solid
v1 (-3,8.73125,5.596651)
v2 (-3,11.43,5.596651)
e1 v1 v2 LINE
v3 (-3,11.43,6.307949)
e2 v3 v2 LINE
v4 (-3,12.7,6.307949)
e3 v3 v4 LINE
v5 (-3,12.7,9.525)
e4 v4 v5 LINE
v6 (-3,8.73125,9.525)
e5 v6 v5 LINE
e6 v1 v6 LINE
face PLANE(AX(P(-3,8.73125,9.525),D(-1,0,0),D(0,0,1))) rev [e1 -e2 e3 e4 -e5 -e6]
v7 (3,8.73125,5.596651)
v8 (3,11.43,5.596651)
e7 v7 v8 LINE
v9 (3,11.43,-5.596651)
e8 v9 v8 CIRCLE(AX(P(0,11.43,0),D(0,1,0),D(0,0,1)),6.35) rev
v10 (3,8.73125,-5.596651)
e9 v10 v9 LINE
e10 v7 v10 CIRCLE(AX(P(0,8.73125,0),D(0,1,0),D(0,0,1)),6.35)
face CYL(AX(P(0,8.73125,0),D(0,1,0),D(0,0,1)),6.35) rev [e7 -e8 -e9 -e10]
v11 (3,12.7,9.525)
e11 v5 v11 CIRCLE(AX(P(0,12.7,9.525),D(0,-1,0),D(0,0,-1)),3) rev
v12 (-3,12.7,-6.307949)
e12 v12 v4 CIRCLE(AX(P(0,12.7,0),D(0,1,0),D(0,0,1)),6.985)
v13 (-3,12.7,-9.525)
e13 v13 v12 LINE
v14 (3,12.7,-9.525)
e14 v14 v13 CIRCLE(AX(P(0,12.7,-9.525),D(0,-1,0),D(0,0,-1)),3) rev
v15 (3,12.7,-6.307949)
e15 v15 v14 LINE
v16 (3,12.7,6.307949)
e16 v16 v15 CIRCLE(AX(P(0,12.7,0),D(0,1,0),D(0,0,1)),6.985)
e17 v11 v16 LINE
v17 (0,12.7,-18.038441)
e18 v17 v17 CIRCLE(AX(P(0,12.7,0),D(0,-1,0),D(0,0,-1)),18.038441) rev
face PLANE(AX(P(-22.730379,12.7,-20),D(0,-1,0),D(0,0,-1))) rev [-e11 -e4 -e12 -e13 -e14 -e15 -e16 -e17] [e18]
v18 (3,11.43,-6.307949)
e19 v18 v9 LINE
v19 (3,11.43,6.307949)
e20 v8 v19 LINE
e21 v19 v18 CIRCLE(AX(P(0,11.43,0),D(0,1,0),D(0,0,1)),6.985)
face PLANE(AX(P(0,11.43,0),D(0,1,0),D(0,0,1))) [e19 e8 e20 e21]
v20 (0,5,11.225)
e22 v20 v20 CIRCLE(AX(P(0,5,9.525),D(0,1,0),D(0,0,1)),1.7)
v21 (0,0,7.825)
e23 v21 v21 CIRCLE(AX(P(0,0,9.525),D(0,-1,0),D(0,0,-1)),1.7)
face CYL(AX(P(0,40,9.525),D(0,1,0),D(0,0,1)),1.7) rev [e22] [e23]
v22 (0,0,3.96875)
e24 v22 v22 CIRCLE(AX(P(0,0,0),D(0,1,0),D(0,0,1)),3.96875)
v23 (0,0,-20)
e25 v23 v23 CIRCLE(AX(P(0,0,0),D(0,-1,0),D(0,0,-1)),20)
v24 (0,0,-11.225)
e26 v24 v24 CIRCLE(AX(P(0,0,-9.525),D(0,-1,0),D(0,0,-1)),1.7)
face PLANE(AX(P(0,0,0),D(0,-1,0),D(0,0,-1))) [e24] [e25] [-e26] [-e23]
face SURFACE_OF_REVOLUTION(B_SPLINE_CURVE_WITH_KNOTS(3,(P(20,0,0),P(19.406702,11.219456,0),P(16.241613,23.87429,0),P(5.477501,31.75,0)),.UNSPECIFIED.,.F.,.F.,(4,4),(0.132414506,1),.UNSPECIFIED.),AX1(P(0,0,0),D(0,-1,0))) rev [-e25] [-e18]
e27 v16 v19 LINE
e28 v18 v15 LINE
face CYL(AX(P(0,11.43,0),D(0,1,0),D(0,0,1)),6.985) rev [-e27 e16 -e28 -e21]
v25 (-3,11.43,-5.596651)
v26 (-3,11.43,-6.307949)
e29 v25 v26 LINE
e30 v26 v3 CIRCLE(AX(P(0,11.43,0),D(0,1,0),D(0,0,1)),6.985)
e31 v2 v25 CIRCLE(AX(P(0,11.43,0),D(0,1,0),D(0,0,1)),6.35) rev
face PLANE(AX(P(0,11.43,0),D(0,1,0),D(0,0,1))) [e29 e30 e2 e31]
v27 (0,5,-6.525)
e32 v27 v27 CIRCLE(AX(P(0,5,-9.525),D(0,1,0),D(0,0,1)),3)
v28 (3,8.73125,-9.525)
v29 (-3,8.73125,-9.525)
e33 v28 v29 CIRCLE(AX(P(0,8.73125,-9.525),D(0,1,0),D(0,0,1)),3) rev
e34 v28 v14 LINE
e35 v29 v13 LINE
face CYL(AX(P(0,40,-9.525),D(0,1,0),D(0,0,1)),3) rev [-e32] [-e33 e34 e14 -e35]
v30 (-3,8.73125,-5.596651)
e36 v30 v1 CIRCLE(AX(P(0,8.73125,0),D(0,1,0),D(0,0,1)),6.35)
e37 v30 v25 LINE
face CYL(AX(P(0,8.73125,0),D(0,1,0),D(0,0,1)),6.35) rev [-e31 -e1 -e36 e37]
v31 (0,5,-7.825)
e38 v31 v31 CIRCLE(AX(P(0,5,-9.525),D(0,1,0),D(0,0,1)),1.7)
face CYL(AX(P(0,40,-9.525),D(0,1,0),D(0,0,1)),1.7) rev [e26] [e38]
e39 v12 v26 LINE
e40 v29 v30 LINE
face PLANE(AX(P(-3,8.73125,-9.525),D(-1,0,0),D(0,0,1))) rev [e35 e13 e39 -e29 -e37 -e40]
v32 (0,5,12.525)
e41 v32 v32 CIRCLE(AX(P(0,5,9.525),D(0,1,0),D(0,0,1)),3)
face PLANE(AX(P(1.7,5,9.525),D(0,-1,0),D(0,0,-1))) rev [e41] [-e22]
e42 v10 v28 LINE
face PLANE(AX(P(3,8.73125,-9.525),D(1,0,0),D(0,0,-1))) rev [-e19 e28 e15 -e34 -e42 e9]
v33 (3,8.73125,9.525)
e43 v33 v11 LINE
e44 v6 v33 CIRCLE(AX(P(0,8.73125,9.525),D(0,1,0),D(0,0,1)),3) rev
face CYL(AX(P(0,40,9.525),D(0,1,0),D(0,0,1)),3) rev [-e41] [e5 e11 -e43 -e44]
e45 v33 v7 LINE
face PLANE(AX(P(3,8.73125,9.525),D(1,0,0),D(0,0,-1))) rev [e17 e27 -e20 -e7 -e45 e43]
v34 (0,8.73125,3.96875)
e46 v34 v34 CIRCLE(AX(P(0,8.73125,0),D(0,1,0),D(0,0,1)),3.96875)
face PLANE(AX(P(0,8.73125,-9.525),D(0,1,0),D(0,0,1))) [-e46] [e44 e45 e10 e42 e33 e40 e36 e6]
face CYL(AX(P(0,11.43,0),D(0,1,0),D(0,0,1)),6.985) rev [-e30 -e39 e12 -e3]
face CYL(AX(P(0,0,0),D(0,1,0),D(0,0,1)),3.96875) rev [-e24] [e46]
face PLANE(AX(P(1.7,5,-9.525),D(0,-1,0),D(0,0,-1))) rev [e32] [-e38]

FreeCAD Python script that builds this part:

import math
import FreeCAD as App
import Part
import Sketcher
Q = App.Units.Quantity


def add_polygon(sketch, points):
    """Adds a closed chain of lines whose ends are joined by coincident constraints."""
    first, n = sketch.GeometryCount, len(points)
    for a, b in zip(points, points[1:] + points[:1]):
        sketch.addGeometry(Part.LineSegment(App.Vector(*a, 0), App.Vector(*b, 0)), False)
    for i in range(n):
        sketch.addConstraint(Sketcher.Constraint("Coincident", first + i, 2, first + (i + 1) % n, 1))

doc = App.newDocument("Part")
params = doc.addObject("Spreadsheet::Sheet", "Params")
for row, (alias, value) in enumerate([
    ("revolution_angle", "360 deg"),
    ("hole_diameter", "3.4 mm"),
    ("hole_cbore_diameter", "6 mm"),
    ("hole_cbore_depth", "35 mm"),
    ("sketch3_height", "1.5 in"),
    ("sketch4_radius", "0.25 in"),
    ("pocket2_length", "0.15625 in"),
    ("sketch5_diameter", "0.55 in"),
    ("pocket3_length", "0.05 in"),
    ("sketch6_diameter", "0.3125 in"),
], start=1):
    params.set(f"A{row}", alias)
    params.set(f"B{row}", "=" + value)
    params.setAlias(f"B{row}", alias)

body = doc.addObject("PartDesign::Body", "Body")

# Sketch on XY plane
sketch1 = body.newObject("Sketcher::SketchObject", "Sketch")
sketch1.AttachmentSupport = (doc.getObject("XY_Plane"), [""])
sketch1.MapMode = "FlatFace"
sketch1.addGeometry([
    Part.LineSegment(App.Vector(0, 31.75, 0), App.Vector(0, 0, 0)),
    Part.LineSegment(App.Vector(0, 0, 0), App.Vector(20, 0, 0)),
    Part.BSplineCurve([App.Vector(5.477501, 31.75, 0), App.Vector(16.241613, 23.87429, 0), App.Vector(19.406702, 11.219456, 0), App.Vector(20, 0, 0)], [4, 4], [0.132414506, 1], False, 3, [1, 1, 1, 1], False),
    Part.LineSegment(App.Vector(5.477501, 31.75, 0), App.Vector(0, 31.75, 0)),
], False)
sketch1.addConstraint([
    Sketcher.Constraint("Block", 2),
    Sketcher.Constraint("Coincident", 0, 2, 1, 1),
    Sketcher.Constraint("Coincident", 1, 2, 2, 2),
    Sketcher.Constraint("Coincident", 2, 1, 3, 1),
    Sketcher.Constraint("Coincident", 3, 2, 0, 1),
    Sketcher.Constraint("Vertical", 0),
    Sketcher.Constraint("Horizontal", 1),
    Sketcher.Constraint("Horizontal", 3),
    Sketcher.Constraint("PointOnObject", 3, 2, -2),
])
revolution = body.newObject("PartDesign::Revolution", "Revolution")
revolution.Profile = sketch1
revolution.ReferenceAxis = (sketch1, ["V_Axis"])
revolution.setExpression("Angle", "Params.revolution_angle")

# Sketch on XZ plane
sketch2 = body.newObject("Sketcher::SketchObject", "Sketch001")
sketch2.AttachmentSupport = (doc.getObject("XZ_Plane"), [""])
sketch2.MapMode = "FlatFace"
sketch2.AttachmentOffset = App.Placement(App.Vector(0, 0, -40), App.Rotation())
sketch2.addGeometry([
    Part.Circle(App.Vector(0, -9.5, 0), App.Vector(0, 0, 1), 1.7),
    Part.Circle(App.Vector(0, 9.5, 0), App.Vector(0, 0, 1), 1.7),
], False)
sketch2.addConstraint([
    Sketcher.Constraint("Equal", 0, 1),
    Sketcher.Constraint("Symmetric", 0, 3, 1, 3, -1, 1),
    Sketcher.Constraint("PointOnObject", 0, 3, -2),
    Sketcher.Constraint("Diameter", 0, Q("3.4 mm")),
    Sketcher.Constraint("DistanceY", 0, 3, 1, 3, Q("0.75 in")),
])
doc.recompute()
hole = body.newObject("PartDesign::Hole", "Hole")
hole.Profile = sketch2
hole.ThreadType = "None"
hole.setExpression("Diameter", "Params.hole_diameter")
hole.DepthType = "ThroughAll"
hole.HoleCutType = "Counterbore"
hole.setExpression("HoleCutDiameter", "Params.hole_cbore_diameter")
hole.setExpression("HoleCutDepth", "Params.hole_cbore_depth")
hole.Reversed = True

# Sketch on XY plane
sketch3 = body.newObject("Sketcher::SketchObject", "Sketch002")
sketch3.AttachmentSupport = (doc.getObject("XY_Plane"), [""])
sketch3.MapMode = "FlatFace"
add_polygon(sketch3, [(-23, 51), (-23, 13), (23, 13), (23, 51)])  # lines 0-3
sketch3.addConstraint([
    Sketcher.Constraint("Vertical", 0),
    Sketcher.Constraint("Horizontal", 1),
    Sketcher.Constraint("Vertical", 2),
    Sketcher.Constraint("Horizontal", 3),
    Sketcher.Constraint("DistanceY", 0, 2, 0, 1, Q("1.5 in")),
    Sketcher.Constraint("DistanceY", -1, 1, 2, 2, Q("2 in")),
    Sketcher.Constraint("DistanceX", 1, 1, 1, 2, Q("45.460757 mm")),
    Sketcher.Constraint("DistanceX", 0, 2, -1, 1, Q("22.730379 mm")),
])
sketch3.setExpression("Constraints[8]", "Params.sketch3_height")
pocket1 = body.newObject("PartDesign::Pocket", "Pocket")
pocket1.Profile = sketch3
pocket1.Type = "ThroughAll"
pocket1.Midplane = True

# Sketch on XZ plane
sketch4 = body.newObject("Sketcher::SketchObject", "Sketch003")
sketch4.AttachmentSupport = (doc.getObject("XZ_Plane"), [""])
sketch4.MapMode = "FlatFace"
sketch4.AttachmentOffset = App.Placement(App.Vector(0, 0, -0.5 * 25.4), App.Rotation())
sketch4.addGeometry([
    Part.LineSegment(App.Vector(-3, -9.5, 0), App.Vector(-3, -5.6, 0)),  # 0
    Part.ArcOfCircle(Part.Circle(App.Vector(0, 0, 0), App.Vector(0, 0, 1), 6.3), math.radians(118), math.radians(242)),  # 1
    Part.LineSegment(App.Vector(-3, 5.6, 0), App.Vector(-3, 9.5, 0)),  # 2
    Part.ArcOfCircle(Part.Circle(App.Vector(0, 9.5, 0), App.Vector(0, 0, 1), 3), math.radians(0), math.radians(180)),  # 3
    Part.LineSegment(App.Vector(3, 9.5, 0), App.Vector(3, 5.6, 0)),  # 4
    Part.ArcOfCircle(Part.Circle(App.Vector(0, 0, 0), App.Vector(0, 0, 1), 6.3), math.radians(-62), math.radians(62)),  # 5
    Part.LineSegment(App.Vector(3, -5.6, 0), App.Vector(3, -9.5, 0)),  # 6
    Part.ArcOfCircle(Part.Circle(App.Vector(0, -9.5, 0), App.Vector(0, 0, 1), 3), math.radians(180), math.radians(360)),  # 7
], False)
sketch4.addConstraint([
    Sketcher.Constraint("Coincident", 0, 2, 1, 2),
    Sketcher.Constraint("Coincident", 1, 1, 2, 1),
    Sketcher.Constraint("Tangent", 2, 2, 3, 2),
    Sketcher.Constraint("Tangent", 3, 1, 4, 1),
    Sketcher.Constraint("Coincident", 4, 2, 5, 2),
    Sketcher.Constraint("Coincident", 5, 1, 6, 1),
    Sketcher.Constraint("Tangent", 6, 2, 7, 2),
    Sketcher.Constraint("Tangent", 7, 1, 0, 1),
    Sketcher.Constraint("Vertical", 0),
    Sketcher.Constraint("Vertical", 2),
    Sketcher.Constraint("Vertical", 4),
    Sketcher.Constraint("Vertical", 6),
    Sketcher.Constraint("Coincident", 1, 3, -1, 1),
    Sketcher.Constraint("Coincident", 5, 3, -1, 1),
    Sketcher.Constraint("Equal", 1, 5),
    Sketcher.Constraint("Equal", 3, 7),
    Sketcher.Constraint("Symmetric", 3, 3, 7, 3, -1, 1),
    Sketcher.Constraint("PointOnObject", 3, 3, -2),
    Sketcher.Constraint("Radius", 1, Q("0.25 in")),
    Sketcher.Constraint("Radius", 3, Q("3 mm")),
    Sketcher.Constraint("DistanceY", 7, 3, 3, 3, Q("0.75 in")),
])
sketch4.setExpression("Constraints[18]", "Params.sketch4_radius")
pocket2 = body.newObject("PartDesign::Pocket", "Pocket001")
pocket2.Profile = sketch4
pocket2.setExpression("Length", "Params.pocket2_length")
pocket2.Reversed = True

# Sketch on XZ plane
sketch5 = body.newObject("Sketcher::SketchObject", "Sketch004")
sketch5.AttachmentSupport = (doc.getObject("XZ_Plane"), [""])
sketch5.MapMode = "FlatFace"
sketch5.AttachmentOffset = App.Placement(App.Vector(0, 0, -0.5 * 25.4), App.Rotation())
sketch5.addGeometry(Part.Circle(App.Vector(0, 0, 0), App.Vector(0, 0, 1), 7), False)
sketch5.addConstraint([
    Sketcher.Constraint("Coincident", 0, 3, -1, 1),
    Sketcher.Constraint("Diameter", 0, Q("0.55 in")),
])
sketch5.setExpression("Constraints[1]", "Params.sketch5_diameter")
pocket3 = body.newObject("PartDesign::Pocket", "Pocket002")
pocket3.Profile = sketch5
pocket3.setExpression("Length", "Params.pocket3_length")
pocket3.Reversed = True

# Sketch on XZ plane
sketch6 = body.newObject("Sketcher::SketchObject", "Sketch005")
sketch6.AttachmentSupport = (doc.getObject("XZ_Plane"), [""])
sketch6.MapMode = "FlatFace"
sketch6.AttachmentOffset = App.Placement(App.Vector(0, 0, -0.34375 * 25.4), App.Rotation())
sketch6.addGeometry(Part.Circle(App.Vector(0, 0, 0), App.Vector(0, 0, 1), 4), False)
sketch6.addConstraint([
    Sketcher.Constraint("Coincident", 0, 3, -1, 1),
    Sketcher.Constraint("Diameter", 0, Q("0.3125 in")),
])
sketch6.setExpression("Constraints[1]", "Params.sketch6_diameter")
pocket4 = body.newObject("PartDesign::Pocket", "Pocket003")
pocket4.Profile = sketch6
pocket4.Type = "ThroughAll"
pocket4.Reversed = True

doc.recompute()
